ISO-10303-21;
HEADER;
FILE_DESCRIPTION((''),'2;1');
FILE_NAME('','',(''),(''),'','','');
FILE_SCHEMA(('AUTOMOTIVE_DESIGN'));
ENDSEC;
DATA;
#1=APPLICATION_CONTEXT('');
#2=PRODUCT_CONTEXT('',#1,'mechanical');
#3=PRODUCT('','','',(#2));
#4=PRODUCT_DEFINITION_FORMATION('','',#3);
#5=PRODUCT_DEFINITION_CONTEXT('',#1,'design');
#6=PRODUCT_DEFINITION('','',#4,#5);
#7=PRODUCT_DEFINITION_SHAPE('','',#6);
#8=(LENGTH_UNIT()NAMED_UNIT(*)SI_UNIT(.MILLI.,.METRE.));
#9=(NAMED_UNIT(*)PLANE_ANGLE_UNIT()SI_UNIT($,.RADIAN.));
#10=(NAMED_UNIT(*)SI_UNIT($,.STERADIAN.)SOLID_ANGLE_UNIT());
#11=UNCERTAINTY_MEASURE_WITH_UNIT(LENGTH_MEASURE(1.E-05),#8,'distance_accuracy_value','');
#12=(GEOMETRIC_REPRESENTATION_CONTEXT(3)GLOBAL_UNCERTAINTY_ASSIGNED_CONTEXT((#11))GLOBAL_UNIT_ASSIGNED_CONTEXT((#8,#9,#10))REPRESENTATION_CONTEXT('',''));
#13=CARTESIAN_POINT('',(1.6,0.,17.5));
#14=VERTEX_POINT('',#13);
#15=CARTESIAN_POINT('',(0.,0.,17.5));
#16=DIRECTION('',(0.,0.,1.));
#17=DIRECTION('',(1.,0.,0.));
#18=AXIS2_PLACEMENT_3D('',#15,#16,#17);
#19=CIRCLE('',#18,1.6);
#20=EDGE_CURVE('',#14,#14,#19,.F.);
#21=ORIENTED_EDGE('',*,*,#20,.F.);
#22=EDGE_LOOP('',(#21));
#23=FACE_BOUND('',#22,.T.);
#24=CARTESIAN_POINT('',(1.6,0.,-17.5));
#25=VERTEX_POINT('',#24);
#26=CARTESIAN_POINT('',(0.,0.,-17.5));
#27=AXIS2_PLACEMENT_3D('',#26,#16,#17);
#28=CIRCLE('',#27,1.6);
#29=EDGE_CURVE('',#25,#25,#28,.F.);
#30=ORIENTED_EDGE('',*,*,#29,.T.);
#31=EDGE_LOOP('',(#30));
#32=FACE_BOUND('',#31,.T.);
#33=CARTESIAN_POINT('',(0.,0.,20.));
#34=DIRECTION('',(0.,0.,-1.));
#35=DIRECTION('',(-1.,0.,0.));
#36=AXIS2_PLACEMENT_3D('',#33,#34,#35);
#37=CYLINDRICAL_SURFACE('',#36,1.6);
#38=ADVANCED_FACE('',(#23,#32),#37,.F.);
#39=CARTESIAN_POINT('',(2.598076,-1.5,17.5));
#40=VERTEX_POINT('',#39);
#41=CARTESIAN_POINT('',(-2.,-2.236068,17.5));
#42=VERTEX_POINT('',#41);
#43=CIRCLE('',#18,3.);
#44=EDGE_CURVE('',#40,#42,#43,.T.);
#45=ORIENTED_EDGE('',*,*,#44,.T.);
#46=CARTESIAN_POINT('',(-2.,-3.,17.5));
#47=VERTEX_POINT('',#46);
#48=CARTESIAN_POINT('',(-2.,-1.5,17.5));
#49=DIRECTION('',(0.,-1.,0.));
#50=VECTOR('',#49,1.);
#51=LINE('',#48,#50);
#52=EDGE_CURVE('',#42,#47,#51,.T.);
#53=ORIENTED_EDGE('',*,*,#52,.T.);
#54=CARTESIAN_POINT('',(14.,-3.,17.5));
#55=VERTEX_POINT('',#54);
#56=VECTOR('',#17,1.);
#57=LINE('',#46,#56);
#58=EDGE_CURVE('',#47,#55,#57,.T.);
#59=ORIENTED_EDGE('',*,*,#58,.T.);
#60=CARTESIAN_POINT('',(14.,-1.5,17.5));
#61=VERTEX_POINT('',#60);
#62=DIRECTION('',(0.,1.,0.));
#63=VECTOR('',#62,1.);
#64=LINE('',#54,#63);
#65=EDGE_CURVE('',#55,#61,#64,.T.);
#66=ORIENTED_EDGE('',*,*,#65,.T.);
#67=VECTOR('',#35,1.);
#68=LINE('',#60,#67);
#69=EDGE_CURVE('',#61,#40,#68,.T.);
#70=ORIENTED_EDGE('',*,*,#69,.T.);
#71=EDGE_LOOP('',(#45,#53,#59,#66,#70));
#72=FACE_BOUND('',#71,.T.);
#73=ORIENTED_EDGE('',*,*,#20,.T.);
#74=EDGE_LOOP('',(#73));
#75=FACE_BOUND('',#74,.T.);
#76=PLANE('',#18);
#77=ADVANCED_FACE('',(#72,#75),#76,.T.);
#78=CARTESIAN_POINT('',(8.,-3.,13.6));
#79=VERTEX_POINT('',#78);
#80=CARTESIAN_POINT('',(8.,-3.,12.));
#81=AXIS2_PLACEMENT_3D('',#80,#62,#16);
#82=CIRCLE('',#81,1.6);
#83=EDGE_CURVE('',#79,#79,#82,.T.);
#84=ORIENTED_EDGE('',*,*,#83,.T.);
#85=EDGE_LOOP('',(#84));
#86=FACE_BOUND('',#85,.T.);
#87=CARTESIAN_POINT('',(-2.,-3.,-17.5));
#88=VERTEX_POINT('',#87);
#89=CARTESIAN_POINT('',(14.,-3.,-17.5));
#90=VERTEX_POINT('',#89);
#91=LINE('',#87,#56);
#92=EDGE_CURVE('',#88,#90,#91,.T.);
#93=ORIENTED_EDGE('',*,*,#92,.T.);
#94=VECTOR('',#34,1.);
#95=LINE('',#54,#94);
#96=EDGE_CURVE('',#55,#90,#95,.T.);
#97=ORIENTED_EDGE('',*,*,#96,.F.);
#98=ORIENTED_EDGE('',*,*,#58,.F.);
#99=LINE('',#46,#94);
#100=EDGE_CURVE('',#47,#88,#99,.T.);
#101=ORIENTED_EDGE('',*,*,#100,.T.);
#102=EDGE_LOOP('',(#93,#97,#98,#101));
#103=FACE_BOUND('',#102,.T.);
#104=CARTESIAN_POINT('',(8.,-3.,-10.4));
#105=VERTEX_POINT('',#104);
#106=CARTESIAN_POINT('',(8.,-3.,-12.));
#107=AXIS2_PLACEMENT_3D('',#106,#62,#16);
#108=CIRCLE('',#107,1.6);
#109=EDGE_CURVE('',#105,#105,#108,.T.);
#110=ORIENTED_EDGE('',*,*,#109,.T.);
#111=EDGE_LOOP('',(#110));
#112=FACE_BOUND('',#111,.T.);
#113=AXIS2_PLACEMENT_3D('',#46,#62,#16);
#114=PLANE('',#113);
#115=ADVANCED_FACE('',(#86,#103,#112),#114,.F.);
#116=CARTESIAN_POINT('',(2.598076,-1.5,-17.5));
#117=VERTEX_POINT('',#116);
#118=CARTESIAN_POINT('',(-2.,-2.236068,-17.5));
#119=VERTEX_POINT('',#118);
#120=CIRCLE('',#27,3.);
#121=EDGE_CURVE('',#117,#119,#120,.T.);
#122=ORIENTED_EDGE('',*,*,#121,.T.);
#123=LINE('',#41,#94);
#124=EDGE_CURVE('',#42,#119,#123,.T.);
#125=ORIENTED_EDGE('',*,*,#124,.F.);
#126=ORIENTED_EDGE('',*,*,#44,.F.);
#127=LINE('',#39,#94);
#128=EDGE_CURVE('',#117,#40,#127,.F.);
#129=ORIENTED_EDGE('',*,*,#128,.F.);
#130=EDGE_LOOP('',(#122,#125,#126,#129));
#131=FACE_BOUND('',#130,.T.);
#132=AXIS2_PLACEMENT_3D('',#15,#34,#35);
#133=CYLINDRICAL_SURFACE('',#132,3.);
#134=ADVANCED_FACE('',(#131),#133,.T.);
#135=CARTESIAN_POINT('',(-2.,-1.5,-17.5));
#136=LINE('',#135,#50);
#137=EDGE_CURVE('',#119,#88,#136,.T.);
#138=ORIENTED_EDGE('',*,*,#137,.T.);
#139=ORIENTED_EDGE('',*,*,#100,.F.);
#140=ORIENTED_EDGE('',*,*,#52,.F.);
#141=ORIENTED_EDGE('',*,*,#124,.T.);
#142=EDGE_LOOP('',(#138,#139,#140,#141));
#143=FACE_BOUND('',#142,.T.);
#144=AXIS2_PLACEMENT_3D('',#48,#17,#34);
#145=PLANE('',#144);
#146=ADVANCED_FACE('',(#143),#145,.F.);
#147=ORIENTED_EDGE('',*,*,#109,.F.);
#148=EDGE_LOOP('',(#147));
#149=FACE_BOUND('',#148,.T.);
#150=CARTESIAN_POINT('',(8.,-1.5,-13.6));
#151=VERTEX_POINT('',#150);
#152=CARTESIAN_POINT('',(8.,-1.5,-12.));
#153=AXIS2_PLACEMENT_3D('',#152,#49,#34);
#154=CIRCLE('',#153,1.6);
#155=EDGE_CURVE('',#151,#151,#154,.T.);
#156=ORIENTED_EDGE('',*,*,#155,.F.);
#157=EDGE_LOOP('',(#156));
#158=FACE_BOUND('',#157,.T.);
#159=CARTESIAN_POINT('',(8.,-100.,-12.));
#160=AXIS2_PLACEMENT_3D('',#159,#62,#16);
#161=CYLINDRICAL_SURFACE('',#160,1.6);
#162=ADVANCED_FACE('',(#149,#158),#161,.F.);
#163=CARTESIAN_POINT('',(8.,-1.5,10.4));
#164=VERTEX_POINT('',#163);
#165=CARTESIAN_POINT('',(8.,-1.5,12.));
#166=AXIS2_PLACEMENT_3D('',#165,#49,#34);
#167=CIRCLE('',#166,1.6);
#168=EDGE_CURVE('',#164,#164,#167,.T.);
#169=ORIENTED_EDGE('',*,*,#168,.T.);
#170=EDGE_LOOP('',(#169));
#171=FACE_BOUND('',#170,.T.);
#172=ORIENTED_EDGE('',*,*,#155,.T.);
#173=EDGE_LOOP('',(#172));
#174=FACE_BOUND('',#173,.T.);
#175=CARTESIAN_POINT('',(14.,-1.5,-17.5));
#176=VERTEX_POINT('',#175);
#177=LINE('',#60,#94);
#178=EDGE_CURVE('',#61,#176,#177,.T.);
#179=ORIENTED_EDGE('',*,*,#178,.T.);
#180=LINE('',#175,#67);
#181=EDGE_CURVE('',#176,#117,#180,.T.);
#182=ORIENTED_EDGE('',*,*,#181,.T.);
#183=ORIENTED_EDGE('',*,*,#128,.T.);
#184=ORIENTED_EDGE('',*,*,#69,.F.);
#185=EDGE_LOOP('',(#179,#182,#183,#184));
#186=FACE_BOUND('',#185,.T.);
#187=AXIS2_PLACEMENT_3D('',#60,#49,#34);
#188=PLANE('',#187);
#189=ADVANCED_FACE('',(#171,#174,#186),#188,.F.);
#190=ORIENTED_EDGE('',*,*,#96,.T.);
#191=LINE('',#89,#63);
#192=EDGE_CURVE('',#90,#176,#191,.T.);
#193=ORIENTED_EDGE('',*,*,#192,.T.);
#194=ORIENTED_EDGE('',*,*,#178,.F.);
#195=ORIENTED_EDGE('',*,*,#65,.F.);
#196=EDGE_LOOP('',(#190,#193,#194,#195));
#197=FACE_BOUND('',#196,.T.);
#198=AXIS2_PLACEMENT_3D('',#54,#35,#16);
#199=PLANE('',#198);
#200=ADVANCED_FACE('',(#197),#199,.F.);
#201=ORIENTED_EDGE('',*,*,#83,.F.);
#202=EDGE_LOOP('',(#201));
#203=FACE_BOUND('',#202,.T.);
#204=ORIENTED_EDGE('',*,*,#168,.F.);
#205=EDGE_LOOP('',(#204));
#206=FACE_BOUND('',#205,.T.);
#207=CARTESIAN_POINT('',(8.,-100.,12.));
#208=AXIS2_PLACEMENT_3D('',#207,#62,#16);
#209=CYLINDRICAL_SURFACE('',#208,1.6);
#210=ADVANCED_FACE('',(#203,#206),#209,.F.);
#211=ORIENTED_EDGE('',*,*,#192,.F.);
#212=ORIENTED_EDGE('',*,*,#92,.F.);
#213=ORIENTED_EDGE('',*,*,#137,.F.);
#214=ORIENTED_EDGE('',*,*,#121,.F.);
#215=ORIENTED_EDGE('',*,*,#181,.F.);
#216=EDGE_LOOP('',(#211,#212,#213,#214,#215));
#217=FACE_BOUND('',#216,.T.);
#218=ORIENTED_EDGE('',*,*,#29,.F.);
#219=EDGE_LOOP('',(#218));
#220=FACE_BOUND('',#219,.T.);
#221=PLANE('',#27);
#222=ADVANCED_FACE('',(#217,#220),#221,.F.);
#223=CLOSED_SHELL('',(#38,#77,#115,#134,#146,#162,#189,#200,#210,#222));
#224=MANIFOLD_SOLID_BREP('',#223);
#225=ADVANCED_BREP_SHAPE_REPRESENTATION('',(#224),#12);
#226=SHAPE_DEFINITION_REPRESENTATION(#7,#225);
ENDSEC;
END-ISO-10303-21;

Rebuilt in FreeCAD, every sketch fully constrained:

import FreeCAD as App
import Part
import Sketcher


def add_polygon(sketch, points):
    """Adds a closed chain of lines whose ends are joined by coincident constraints."""
    first, n = sketch.GeometryCount, len(points)
    for a, b in zip(points, points[1:] + points[:1]):
        sketch.addGeometry(Part.LineSegment(App.Vector(*a, 0), App.Vector(*b, 0)), False)
    for i in range(n):
        sketch.addConstraint(Sketcher.Constraint("Coincident", first + i, 2, first + (i + 1) % n, 1))

doc = App.newDocument("Part")
body = doc.addObject("PartDesign::Body", "Body")

sketch1 = body.newObject("Sketcher::SketchObject", "Sketch")
sketch1.AttachmentSupport = (doc.getObject("XY_Plane"), [""])
sketch1.MapMode = "FlatFace"
sketch1.AttachmentOffset = App.Placement(App.Vector(0, 0, -17.5), App.Rotation())
sketch1.addGeometry(Part.Circle(App.Vector(0, 0, 0), App.Vector(0, 0, 1), 3), False)
sketch1.addConstraint(Sketcher.Constraint("Coincident", 0, 3, -1, 1))
sketch1.addConstraint(Sketcher.Constraint("Diameter", 0, 6.0))
pad1 = body.newObject("PartDesign::Pad", "Pad")
pad1.Profile = sketch1
pad1.Length = 35

sketch2 = body.newObject("Sketcher::SketchObject", "Sketch001")
sketch2.AttachmentSupport = (doc.getObject("XY_Plane"), [""])
sketch2.MapMode = "FlatFace"
sketch2.AttachmentOffset = App.Placement(App.Vector(0, 0, -17.5), App.Rotation())
add_polygon(sketch2, [(-2, -1.5), (-2, -3), (14, -3), (14, -1.5)])
sketch2.addConstraint(Sketcher.Constraint("Vertical", 0))
sketch2.addConstraint(Sketcher.Constraint("Horizontal", 1))
sketch2.addConstraint(Sketcher.Constraint("Vertical", 2))
sketch2.addConstraint(Sketcher.Constraint("Horizontal", 3))
sketch2.addConstraint(Sketcher.Constraint("DistanceX", 1, 1, 1, 2, 16.0))
sketch2.addConstraint(Sketcher.Constraint("DistanceY", 0, 2, 0, 1, 1.5))
sketch2.addConstraint(Sketcher.Constraint("DistanceX", 0, 2, -1, 1, 2.0))
sketch2.addConstraint(Sketcher.Constraint("DistanceY", 0, 2, -1, 1, 3.0))
pad2 = body.newObject("PartDesign::Pad", "Pad001")
pad2.Profile = sketch2
pad2.Length = 35

sketch3 = body.newObject("Sketcher::SketchObject", "Sketch002")
sketch3.AttachmentSupport = (doc.getObject("XY_Plane"), [""])
sketch3.MapMode = "FlatFace"
sketch3.AttachmentOffset = App.Placement(App.Vector(0, 0, -20), App.Rotation())
sketch3.addGeometry(Part.Circle(App.Vector(0, 0, 0), App.Vector(0, 0, 1), 1.6), False)
sketch3.addConstraint(Sketcher.Constraint("Coincident", 0, 3, -1, 1))
sketch3.addConstraint(Sketcher.Constraint("Diameter", 0, 3.2))
pocket1 = body.newObject("PartDesign::Pocket", "Pocket")
pocket1.Profile = sketch3
pocket1.Length = 40
pocket1.Reversed = True

sketch4 = body.newObject("Sketcher::SketchObject", "Sketch003")
sketch4.AttachmentSupport = (doc.getObject("XZ_Plane"), [""])
sketch4.MapMode = "FlatFace"
sketch4.addGeometry(Part.Circle(App.Vector(8, -12, 0), App.Vector(0, 0, 1), 1.6), False)
sketch4.addConstraint(Sketcher.Constraint("Diameter", 0, 3.2))
sketch4.addConstraint(Sketcher.Constraint("DistanceX", -1, 1, 0, 3, 8.0))
sketch4.addConstraint(Sketcher.Constraint("DistanceY", 0, 3, -1, 1, 12.0))
pocket2 = body.newObject("PartDesign::Pocket", "Pocket001")
pocket2.Profile = sketch4
pocket2.Type = "ThroughAll"
pocket2.Midplane = True

sketch5 = body.newObject("Sketcher::SketchObject", "Sketch004")
sketch5.AttachmentSupport = (doc.getObject("XZ_Plane"), [""])
sketch5.MapMode = "FlatFace"
sketch5.addGeometry(Part.Circle(App.Vector(8, 12, 0), App.Vector(0, 0, 1), 1.6), False)
sketch5.addConstraint(Sketcher.Constraint("Diameter", 0, 3.2))
sketch5.addConstraint(Sketcher.Constraint("DistanceX", -1, 1, 0, 3, 8.0))
sketch5.addConstraint(Sketcher.Constraint("DistanceY", -1, 1, 0, 3, 12.0))
pocket3 = body.newObject("PartDesign::Pocket", "Pocket002")
pocket3.Profile = sketch5
pocket3.Type = "ThroughAll"
pocket3.Midplane = True

doc.recompute()
